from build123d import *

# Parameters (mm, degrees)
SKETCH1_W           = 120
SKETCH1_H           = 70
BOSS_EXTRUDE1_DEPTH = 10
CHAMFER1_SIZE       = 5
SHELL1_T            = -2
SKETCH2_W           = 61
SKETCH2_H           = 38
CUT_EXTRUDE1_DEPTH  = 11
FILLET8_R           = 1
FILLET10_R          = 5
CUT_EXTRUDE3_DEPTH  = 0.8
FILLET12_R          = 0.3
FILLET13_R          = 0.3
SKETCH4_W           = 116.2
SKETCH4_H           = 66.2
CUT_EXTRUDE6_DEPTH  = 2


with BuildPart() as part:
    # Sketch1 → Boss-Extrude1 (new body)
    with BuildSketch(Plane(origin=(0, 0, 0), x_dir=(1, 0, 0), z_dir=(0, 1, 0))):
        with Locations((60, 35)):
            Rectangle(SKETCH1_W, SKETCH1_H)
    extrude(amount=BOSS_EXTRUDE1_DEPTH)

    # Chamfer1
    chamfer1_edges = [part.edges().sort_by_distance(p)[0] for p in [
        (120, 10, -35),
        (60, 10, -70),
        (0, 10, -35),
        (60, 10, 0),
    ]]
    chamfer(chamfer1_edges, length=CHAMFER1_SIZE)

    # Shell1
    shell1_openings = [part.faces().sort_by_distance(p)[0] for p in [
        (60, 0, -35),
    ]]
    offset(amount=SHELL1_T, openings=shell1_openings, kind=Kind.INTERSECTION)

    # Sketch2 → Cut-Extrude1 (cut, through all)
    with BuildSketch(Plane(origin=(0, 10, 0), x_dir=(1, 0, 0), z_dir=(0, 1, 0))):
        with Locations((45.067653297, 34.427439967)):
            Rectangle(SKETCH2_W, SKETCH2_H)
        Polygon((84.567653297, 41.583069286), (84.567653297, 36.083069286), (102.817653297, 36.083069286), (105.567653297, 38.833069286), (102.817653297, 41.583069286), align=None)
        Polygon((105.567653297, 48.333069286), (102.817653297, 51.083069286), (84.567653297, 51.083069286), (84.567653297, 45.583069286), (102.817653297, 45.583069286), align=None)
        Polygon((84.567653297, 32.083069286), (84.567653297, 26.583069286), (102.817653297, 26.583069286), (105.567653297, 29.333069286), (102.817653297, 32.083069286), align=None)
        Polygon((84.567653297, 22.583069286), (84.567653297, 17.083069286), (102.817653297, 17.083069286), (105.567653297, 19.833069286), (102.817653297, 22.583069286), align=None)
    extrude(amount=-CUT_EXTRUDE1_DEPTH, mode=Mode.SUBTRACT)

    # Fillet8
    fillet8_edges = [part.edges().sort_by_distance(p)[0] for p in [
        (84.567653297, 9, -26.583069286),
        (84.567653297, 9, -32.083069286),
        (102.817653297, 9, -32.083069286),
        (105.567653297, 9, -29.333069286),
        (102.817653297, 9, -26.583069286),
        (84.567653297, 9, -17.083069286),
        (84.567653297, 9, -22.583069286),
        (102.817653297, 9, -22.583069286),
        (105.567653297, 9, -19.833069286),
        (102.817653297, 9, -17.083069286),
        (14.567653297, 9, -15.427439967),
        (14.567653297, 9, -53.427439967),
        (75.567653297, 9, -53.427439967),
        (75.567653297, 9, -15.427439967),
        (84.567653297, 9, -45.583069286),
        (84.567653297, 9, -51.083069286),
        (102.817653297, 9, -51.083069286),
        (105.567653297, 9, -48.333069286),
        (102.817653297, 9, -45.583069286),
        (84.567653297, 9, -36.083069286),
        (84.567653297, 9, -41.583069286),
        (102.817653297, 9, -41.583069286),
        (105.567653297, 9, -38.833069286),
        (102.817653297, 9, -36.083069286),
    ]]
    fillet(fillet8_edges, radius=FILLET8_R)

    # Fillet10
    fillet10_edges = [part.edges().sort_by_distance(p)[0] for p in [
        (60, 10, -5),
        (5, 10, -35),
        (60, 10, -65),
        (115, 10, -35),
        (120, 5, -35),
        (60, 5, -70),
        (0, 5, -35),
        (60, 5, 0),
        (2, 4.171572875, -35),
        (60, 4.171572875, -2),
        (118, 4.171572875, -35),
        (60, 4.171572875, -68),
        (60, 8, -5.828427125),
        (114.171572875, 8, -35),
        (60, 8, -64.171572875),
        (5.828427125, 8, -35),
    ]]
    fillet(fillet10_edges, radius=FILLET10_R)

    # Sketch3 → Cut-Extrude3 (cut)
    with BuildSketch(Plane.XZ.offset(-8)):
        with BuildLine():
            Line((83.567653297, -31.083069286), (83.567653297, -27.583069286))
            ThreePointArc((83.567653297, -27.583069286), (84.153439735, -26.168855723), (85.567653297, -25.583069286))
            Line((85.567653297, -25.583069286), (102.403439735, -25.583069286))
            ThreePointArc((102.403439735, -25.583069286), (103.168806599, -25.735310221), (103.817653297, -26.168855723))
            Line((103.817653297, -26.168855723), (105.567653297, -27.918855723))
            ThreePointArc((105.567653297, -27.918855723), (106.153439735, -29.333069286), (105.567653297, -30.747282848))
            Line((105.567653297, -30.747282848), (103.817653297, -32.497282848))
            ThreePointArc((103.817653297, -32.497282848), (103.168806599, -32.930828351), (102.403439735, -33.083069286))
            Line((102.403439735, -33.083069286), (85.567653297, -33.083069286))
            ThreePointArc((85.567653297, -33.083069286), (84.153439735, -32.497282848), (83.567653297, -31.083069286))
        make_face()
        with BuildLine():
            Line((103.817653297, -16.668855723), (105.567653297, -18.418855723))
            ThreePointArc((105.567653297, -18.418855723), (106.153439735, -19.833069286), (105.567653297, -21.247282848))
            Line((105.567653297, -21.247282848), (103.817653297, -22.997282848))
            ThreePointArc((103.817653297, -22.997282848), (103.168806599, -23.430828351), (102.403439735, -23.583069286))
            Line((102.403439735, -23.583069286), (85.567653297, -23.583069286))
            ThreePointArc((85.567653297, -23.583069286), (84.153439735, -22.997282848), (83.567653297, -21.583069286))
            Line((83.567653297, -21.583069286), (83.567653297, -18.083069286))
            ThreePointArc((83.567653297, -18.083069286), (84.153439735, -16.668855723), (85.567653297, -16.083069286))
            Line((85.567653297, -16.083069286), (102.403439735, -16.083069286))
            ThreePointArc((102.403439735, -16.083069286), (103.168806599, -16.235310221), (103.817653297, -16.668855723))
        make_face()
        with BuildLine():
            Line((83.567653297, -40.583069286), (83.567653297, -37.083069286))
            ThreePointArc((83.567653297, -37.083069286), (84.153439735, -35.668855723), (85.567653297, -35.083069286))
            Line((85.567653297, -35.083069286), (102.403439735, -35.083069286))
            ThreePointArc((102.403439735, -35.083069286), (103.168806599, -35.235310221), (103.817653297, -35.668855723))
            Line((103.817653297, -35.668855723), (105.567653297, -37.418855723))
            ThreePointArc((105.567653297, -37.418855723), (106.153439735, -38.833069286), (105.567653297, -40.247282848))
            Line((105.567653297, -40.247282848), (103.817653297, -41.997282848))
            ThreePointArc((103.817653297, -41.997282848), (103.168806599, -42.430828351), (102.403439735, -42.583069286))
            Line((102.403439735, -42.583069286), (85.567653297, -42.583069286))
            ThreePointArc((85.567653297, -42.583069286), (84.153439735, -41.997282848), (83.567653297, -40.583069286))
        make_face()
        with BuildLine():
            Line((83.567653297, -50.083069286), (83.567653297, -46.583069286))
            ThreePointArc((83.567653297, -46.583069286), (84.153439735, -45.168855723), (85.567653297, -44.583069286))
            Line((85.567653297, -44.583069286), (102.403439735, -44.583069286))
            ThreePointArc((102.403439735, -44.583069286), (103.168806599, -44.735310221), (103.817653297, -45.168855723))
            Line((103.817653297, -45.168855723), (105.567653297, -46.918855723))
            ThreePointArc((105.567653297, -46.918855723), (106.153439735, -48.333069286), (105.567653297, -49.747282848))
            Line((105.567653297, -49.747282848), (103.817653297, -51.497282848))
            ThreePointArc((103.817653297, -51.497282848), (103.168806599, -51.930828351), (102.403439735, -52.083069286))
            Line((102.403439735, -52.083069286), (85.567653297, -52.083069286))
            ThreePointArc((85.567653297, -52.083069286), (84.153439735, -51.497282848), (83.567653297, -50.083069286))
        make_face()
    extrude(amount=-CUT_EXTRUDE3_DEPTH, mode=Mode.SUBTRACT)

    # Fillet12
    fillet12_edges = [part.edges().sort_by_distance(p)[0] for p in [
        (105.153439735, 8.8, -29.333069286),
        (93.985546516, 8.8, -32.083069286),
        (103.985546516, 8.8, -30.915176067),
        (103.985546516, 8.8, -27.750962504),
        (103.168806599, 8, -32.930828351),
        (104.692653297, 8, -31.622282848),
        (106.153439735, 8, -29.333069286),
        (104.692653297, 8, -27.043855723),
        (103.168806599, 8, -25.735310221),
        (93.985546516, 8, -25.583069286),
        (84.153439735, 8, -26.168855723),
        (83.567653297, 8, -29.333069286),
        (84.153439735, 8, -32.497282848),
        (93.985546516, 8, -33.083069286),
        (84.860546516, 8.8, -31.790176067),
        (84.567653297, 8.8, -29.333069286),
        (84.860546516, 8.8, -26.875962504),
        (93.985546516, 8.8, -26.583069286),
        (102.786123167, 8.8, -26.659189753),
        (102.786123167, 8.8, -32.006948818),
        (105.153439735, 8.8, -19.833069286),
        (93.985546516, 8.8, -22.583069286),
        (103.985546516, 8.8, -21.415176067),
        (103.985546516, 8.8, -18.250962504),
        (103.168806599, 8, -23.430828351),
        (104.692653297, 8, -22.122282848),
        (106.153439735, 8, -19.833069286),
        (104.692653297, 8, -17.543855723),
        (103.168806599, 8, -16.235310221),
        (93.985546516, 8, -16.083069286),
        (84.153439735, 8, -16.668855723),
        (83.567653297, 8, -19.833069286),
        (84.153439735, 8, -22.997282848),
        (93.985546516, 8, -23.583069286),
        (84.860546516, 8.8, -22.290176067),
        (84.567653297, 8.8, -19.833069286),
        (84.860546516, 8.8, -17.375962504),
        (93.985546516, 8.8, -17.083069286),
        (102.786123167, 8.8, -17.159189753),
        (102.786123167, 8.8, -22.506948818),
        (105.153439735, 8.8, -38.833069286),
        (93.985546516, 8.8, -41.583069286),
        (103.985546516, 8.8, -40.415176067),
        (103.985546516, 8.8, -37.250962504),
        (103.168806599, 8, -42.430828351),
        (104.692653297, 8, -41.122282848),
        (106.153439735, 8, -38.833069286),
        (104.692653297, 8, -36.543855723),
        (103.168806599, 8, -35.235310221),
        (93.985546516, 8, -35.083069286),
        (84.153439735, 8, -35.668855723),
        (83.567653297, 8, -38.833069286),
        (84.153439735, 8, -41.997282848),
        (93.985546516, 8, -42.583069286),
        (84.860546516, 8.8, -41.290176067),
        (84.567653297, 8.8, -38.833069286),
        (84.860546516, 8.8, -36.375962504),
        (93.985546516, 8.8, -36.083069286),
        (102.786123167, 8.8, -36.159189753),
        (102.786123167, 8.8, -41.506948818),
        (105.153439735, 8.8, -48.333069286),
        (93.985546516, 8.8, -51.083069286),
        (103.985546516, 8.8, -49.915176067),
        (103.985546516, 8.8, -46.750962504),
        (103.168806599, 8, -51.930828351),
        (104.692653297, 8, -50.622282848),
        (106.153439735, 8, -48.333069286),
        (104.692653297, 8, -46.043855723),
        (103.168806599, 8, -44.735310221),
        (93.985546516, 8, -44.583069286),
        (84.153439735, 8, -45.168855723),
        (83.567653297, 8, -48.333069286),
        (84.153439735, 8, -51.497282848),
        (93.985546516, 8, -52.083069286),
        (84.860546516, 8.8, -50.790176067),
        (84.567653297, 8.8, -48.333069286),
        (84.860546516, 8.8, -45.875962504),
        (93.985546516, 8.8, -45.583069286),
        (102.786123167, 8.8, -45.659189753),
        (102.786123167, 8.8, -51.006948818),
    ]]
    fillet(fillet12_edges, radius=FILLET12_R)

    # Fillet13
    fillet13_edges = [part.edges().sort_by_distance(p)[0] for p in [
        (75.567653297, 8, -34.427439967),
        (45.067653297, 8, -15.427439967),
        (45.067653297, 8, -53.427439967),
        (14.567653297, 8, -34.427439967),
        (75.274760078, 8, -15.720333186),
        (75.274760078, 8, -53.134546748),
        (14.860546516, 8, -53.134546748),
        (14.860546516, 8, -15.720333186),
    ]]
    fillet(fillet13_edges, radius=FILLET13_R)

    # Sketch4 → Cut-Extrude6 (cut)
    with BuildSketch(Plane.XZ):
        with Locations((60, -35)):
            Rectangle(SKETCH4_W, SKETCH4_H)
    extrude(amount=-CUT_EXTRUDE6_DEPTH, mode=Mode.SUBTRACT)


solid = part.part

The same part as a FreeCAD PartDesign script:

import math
import FreeCAD as App
import Part
import Sketcher
from FreeCAD import Vector
Q = App.Units.Quantity


def edges_at(feature, points):
    """Names of the edges that pass closest to the given points."""
    edges = feature.Shape.Edges
    near = lambda p: min(range(len(edges)), key=lambda i: edges[i].distToShape(Part.Vertex(*p))[0])
    return sorted({f"Edge{near(p) + 1}" for p in points})


def faces_at(feature, points):
    """Names of the faces that lie closest to the given points."""
    faces = feature.Shape.Faces
    near = lambda p: min(range(len(faces)), key=lambda i: faces[i].distToShape(Part.Vertex(*p))[0])
    return sorted({f"Face{near(p) + 1}" for p in points})

doc = App.newDocument("Part")
body = doc.addObject("PartDesign::Body", "Body")

# Sketch on XZ plane
sketch1 = body.newObject("Sketcher::SketchObject", "Sketch")
sketch1.AttachmentSupport = (doc.getObject("XZ_Plane"), [""])
sketch1.MapMode = "FlatFace"
sketch1.addGeometry(Part.LineSegment(Vector(0, -70, 0), Vector(0, 0, 0)), False)
sketch1.addGeometry(Part.LineSegment(Vector(0, 0, 0), Vector(120, 0, 0)), False)
sketch1.addGeometry(Part.LineSegment(Vector(120, 0, 0), Vector(120, -70, 0)), False)
sketch1.addGeometry(Part.LineSegment(Vector(120, -70, 0), Vector(0, -70, 0)), False)
sketch1.addConstraint(Sketcher.Constraint("Coincident", 0, 2, 1, 1))
sketch1.addConstraint(Sketcher.Constraint("Coincident", 1, 2, 2, 1))
sketch1.addConstraint(Sketcher.Constraint("Coincident", 2, 2, 3, 1))
sketch1.addConstraint(Sketcher.Constraint("Coincident", 3, 2, 0, 1))
sketch1.addConstraint(Sketcher.Constraint("Vertical", 0))
sketch1.addConstraint(Sketcher.Constraint("Horizontal", 1))
sketch1.addConstraint(Sketcher.Constraint("Vertical", 2))
sketch1.addConstraint(Sketcher.Constraint("Horizontal", 3))
sketch1.addConstraint(Sketcher.Constraint("Coincident", 0, 2, -1, 1))
sketch1.addConstraint(Sketcher.Constraint("DistanceX", 1, 1, 1, 2, Q("120 mm")))
sketch1.addConstraint(Sketcher.Constraint("DistanceY", 0, 1, 0, 2, Q("70 mm")))
pad1 = body.newObject("PartDesign::Pad", "Pad")
pad1.Profile = sketch1
pad1.Length = 10
pad1.Reversed = True
doc.recompute()

chamfer = body.newObject("PartDesign::Chamfer", "Chamfer")
chamfer.Base = (pad1, edges_at(pad1, [
    (120, 10, -35),
    (60, 10, -70),
    (0, 10, -35),
    (60, 10, 0),
]))
chamfer.Size = 5
doc.recompute()

thickness = body.newObject("PartDesign::Thickness", "Thickness")
thickness.Base = (chamfer, faces_at(chamfer, [(60, 0, -35)]))
thickness.Value = 2
thickness.Reversed = True
thickness.Join = "Intersection"

# Sketch on XZ plane
sketch2 = body.newObject("Sketcher::SketchObject", "Sketch001")
sketch2.AttachmentSupport = (doc.getObject("XZ_Plane"), [""])
sketch2.MapMode = "FlatFace"
sketch2.AttachmentOffset = App.Placement(Vector(0, 0, -10), App.Rotation())
sketch2.addGeometry(Part.LineSegment(Vector(14.6, -53.4, 0), Vector(14.6, -15.4, 0)), False)
sketch2.addGeometry(Part.LineSegment(Vector(14.6, -15.4, 0), Vector(75.6, -15.4, 0)), False)
sketch2.addGeometry(Part.LineSegment(Vector(75.6, -15.4, 0), Vector(75.6, -53.4, 0)), False)
sketch2.addGeometry(Part.LineSegment(Vector(75.6, -53.4, 0), Vector(14.6, -53.4, 0)), False)
sketch2.addGeometry(Part.LineSegment(Vector(84.6, -41.6, 0), Vector(84.6, -36.1, 0)), False)
sketch2.addGeometry(Part.LineSegment(Vector(84.6, -36.1, 0), Vector(102.8, -36.1, 0)), False)
sketch2.addGeometry(Part.LineSegment(Vector(102.8, -36.1, 0), Vector(105.6, -38.8, 0)), False)
sketch2.addGeometry(Part.LineSegment(Vector(105.6, -38.8, 0), Vector(102.8, -41.6, 0)), False)
sketch2.addGeometry(Part.LineSegment(Vector(102.8, -41.6, 0), Vector(84.6, -41.6, 0)), False)
sketch2.addGeometry(Part.LineSegment(Vector(105.6, -48.3, 0), Vector(102.8, -51.1, 0)), False)
sketch2.addGeometry(Part.LineSegment(Vector(102.8, -51.1, 0), Vector(84.6, -51.1, 0)), False)
sketch2.addGeometry(Part.LineSegment(Vector(84.6, -51.1, 0), Vector(84.6, -45.6, 0)), False)
sketch2.addGeometry(Part.LineSegment(Vector(84.6, -45.6, 0), Vector(102.8, -45.6, 0)), False)
sketch2.addGeometry(Part.LineSegment(Vector(102.8, -45.6, 0), Vector(105.6, -48.3, 0)), False)
sketch2.addGeometry(Part.LineSegment(Vector(84.6, -32.1, 0), Vector(84.6, -26.6, 0)), False)
sketch2.addGeometry(Part.LineSegment(Vector(84.6, -26.6, 0), Vector(102.8, -26.6, 0)), False)
sketch2.addGeometry(Part.LineSegment(Vector(102.8, -26.6, 0), Vector(105.6, -29.3, 0)), False)
sketch2.addGeometry(Part.LineSegment(Vector(105.6, -29.3, 0), Vector(102.8, -32.1, 0)), False)
sketch2.addGeometry(Part.LineSegment(Vector(102.8, -32.1, 0), Vector(84.6, -32.1, 0)), False)
sketch2.addGeometry(Part.LineSegment(Vector(84.6, -22.6, 0), Vector(84.6, -17.1, 0)), False)
sketch2.addGeometry(Part.LineSegment(Vector(84.6, -17.1, 0), Vector(102.8, -17.1, 0)), False)
sketch2.addGeometry(Part.LineSegment(Vector(102.8, -17.1, 0), Vector(105.6, -19.8, 0)), False)
sketch2.addGeometry(Part.LineSegment(Vector(105.6, -19.8, 0), Vector(102.8, -22.6, 0)), False)
sketch2.addGeometry(Part.LineSegment(Vector(102.8, -22.6, 0), Vector(84.6, -22.6, 0)), False)
sketch2.addConstraint(Sketcher.Constraint("Coincident", 0, 2, 1, 1))
sketch2.addConstraint(Sketcher.Constraint("Coincident", 1, 2, 2, 1))
sketch2.addConstraint(Sketcher.Constraint("Coincident", 2, 2, 3, 1))
sketch2.addConstraint(Sketcher.Constraint("Coincident", 3, 2, 0, 1))
sketch2.addConstraint(Sketcher.Constraint("Coincident", 4, 2, 5, 1))
sketch2.addConstraint(Sketcher.Constraint("Coincident", 5, 2, 6, 1))
sketch2.addConstraint(Sketcher.Constraint("Coincident", 6, 2, 7, 1))
sketch2.addConstraint(Sketcher.Constraint("Coincident", 7, 2, 8, 1))
sketch2.addConstraint(Sketcher.Constraint("Coincident", 8, 2, 4, 1))
sketch2.addConstraint(Sketcher.Constraint("Coincident", 9, 2, 10, 1))
sketch2.addConstraint(Sketcher.Constraint("Coincident", 10, 2, 11, 1))
sketch2.addConstraint(Sketcher.Constraint("Coincident", 11, 2, 12, 1))
sketch2.addConstraint(Sketcher.Constraint("Coincident", 12, 2, 13, 1))
sketch2.addConstraint(Sketcher.Constraint("Coincident", 13, 2, 9, 1))
sketch2.addConstraint(Sketcher.Constraint("Coincident", 14, 2, 15, 1))
sketch2.addConstraint(Sketcher.Constraint("Coincident", 15, 2, 16, 1))
sketch2.addConstraint(Sketcher.Constraint("Coincident", 16, 2, 17, 1))
sketch2.addConstraint(Sketcher.Constraint("Coincident", 17, 2, 18, 1))
sketch2.addConstraint(Sketcher.Constraint("Coincident", 18, 2, 14, 1))
sketch2.addConstraint(Sketcher.Constraint("Coincident", 19, 2, 20, 1))
sketch2.addConstraint(Sketcher.Constraint("Coincident", 20, 2, 21, 1))
sketch2.addConstraint(Sketcher.Constraint("Coincident", 21, 2, 22, 1))
sketch2.addConstraint(Sketcher.Constraint("Coincident", 22, 2, 23, 1))
sketch2.addConstraint(Sketcher.Constraint("Coincident", 23, 2, 19, 1))
sketch2.addConstraint(Sketcher.Constraint("Vertical", 0))
sketch2.addConstraint(Sketcher.Constraint("Horizontal", 1))
sketch2.addConstraint(Sketcher.Constraint("Vertical", 2))
sketch2.addConstraint(Sketcher.Constraint("Horizontal", 3))
sketch2.addConstraint(Sketcher.Constraint("Vertical", 4))
sketch2.addConstraint(Sketcher.Constraint("Horizontal", 5))
sketch2.addConstraint(Sketcher.Constraint("Horizontal", 8))
sketch2.addConstraint(Sketcher.Constraint("Horizontal", 10))
sketch2.addConstraint(Sketcher.Constraint("Vertical", 11))
sketch2.addConstraint(Sketcher.Constraint("Horizontal", 12))
sketch2.addConstraint(Sketcher.Constraint("Vertical", 14))
sketch2.addConstraint(Sketcher.Constraint("Horizontal", 15))
sketch2.addConstraint(Sketcher.Constraint("Horizontal", 18))
sketch2.addConstraint(Sketcher.Constraint("Vertical", 19))
sketch2.addConstraint(Sketcher.Constraint("Horizontal", 20))
sketch2.addConstraint(Sketcher.Constraint("Horizontal", 23))
sketch2.addConstraint(Sketcher.Constraint("Perpendicular", 6, 7))
sketch2.addConstraint(Sketcher.Constraint("Parallel", 7, 9))
sketch2.addConstraint(Sketcher.Constraint("Perpendicular", 9, 13))
sketch2.addConstraint(Sketcher.Constraint("Parallel", 13, 16))
sketch2.addConstraint(Sketcher.Constraint("Perpendicular", 16, 17))
sketch2.addConstraint(Sketcher.Constraint("Perpendicular", 17, 21))
sketch2.addConstraint(Sketcher.Constraint("Perpendicular", 21, 22))
sketch2.addConstraint(Sketcher.Constraint("Vertical", 5, 2, 7, 2))
sketch2.addConstraint(Sketcher.Constraint("Vertical", 7, 2, 9, 2))
sketch2.addConstraint(Sketcher.Constraint("Vertical", 8, 2, 10, 2))
sketch2.addConstraint(Sketcher.Constraint("Vertical", 9, 2, 12, 2))
sketch2.addConstraint(Sketcher.Constraint("Vertical", 6, 2, 13, 2))
sketch2.addConstraint(Sketcher.Constraint("Vertical", 11, 2, 14, 2))
sketch2.addConstraint(Sketcher.Constraint("Vertical", 12, 2, 15, 2))
sketch2.addConstraint(Sketcher.Constraint("Vertical", 13, 2, 16, 2))
sketch2.addConstraint(Sketcher.Constraint("Vertical", 15, 2, 17, 2))
sketch2.addConstraint(Sketcher.Constraint("Vertical", 18, 2, 19, 2))
sketch2.addConstraint(Sketcher.Constraint("Vertical", 17, 2, 20, 2))
sketch2.addConstraint(Sketcher.Constraint("Vertical", 16, 2, 21, 2))
sketch2.addConstraint(Sketcher.Constraint("Vertical", 20, 2, 22, 2))
sketch2.addConstraint(Sketcher.Constraint("Equal", 6, 7))
sketch2.addConstraint(Sketcher.Constraint("DistanceX", 1, 1, 1, 2, Q("61 mm")))
sketch2.addConstraint(Sketcher.Constraint("DistanceY", 0, 1, 0, 2, Q("38 mm")))
sketch2.addConstraint(Sketcher.Constraint("DistanceY", 4, 1, 4, 2, Q("5.5 mm")))
sketch2.addConstraint(Sketcher.Constraint("DistanceX", 2, 2, 4, 2, Q("9 mm")))
sketch2.addConstraint(Sketcher.Constraint("DistanceX", 4, 2, 6, 2, Q("21 mm")))
sketch2.addConstraint(Sketcher.Constraint("DistanceY", 9, 2, 5, 2, Q("15 mm")))
sketch2.addConstraint(Sketcher.Constraint("DistanceY", 8, 2, 14, 2, Q("15 mm")))
sketch2.addConstraint(Sketcher.Constraint("DistanceY", 18, 2, 19, 2, Q("15 mm")))
sketch2.addConstraint(Sketcher.Constraint("DistanceY", 0, 2, -1, 1, Q("15.42744 mm")))
sketch2.addConstraint(Sketcher.Constraint("DistanceY", 4, 2, -1, 1, Q("36.083069 mm")))
sketch2.addConstraint(Sketcher.Constraint("DistanceX", -1, 1, 0, 2, Q("14.567653 mm")))
pocket1 = body.newObject("PartDesign::Pocket", "Pocket")
pocket1.Profile = sketch2
pocket1.Type = "ThroughAll"
pocket1.Reversed = True
doc.recompute()

fillet = body.newObject("PartDesign::Fillet", "Fillet")
fillet.Base = (pocket1, edges_at(pocket1, [
    (84.568, 9, -26.583),
    (84.568, 9, -32.083),
    (102.818, 9, -32.083),
    (105.568, 9, -29.333),
    (102.818, 9, -26.583),
    (84.568, 9, -17.083),
    (84.568, 9, -22.583),
    (102.818, 9, -22.583),
    (105.568, 9, -19.833),
    (102.818, 9, -17.083),
    (14.568, 9, -15.427),
    (14.568, 9, -53.427),
    (75.568, 9, -53.427),
    (75.568, 9, -15.427),
    (84.568, 9, -45.583),
    (84.568, 9, -51.083),
    (102.818, 9, -51.083),
    (105.568, 9, -48.333),
    (102.818, 9, -45.583),
    (84.568, 9, -36.083),
    (84.568, 9, -41.583),
    (102.818, 9, -41.583),
    (105.568, 9, -38.833),
    (102.818, 9, -36.083),
]))
fillet.Radius = 1
doc.recompute()

fillet2 = body.newObject("PartDesign::Fillet", "Fillet001")
fillet2.Base = (fillet, edges_at(fillet, [
    (60, 10, -5),
    (5, 10, -35),
    (60, 10, -65),
    (115, 10, -35),
    (120, 5, -35),
    (60, 5, -70),
    (0, 5, -35),
    (60, 5, 0),
    (2, 4.172, -35),
    (60, 4.172, -2),
    (118, 4.172, -35),
    (60, 4.172, -68),
    (60, 8, -5.828),
    (114.172, 8, -35),
    (60, 8, -64.172),
    (5.828, 8, -35),
]))
fillet2.Radius = 5

# Sketch on XZ plane
sketch3 = body.newObject("Sketcher::SketchObject", "Sketch002")
sketch3.AttachmentSupport = (doc.getObject("XZ_Plane"), [""])
sketch3.MapMode = "FlatFace"
sketch3.AttachmentOffset = App.Placement(Vector(0, 0, -8), App.Rotation())
sketch3.addGeometry(Part.LineSegment(Vector(83.6, -27.6, 0), Vector(83.6, -31.1, 0)), False)
sketch3.addGeometry(Part.ArcOfCircle(Part.Circle(Vector(85.6, -31.1, 0), Vector(0, 0, 1), 2), math.radians(-180), math.radians(-90)), False)
sketch3.addGeometry(Part.LineSegment(Vector(85.6, -33.1, 0), Vector(102.4, -33.1, 0)), False)
sketch3.addGeometry(Part.ArcOfCircle(Part.Circle(Vector(102.4, -31.1, 0), Vector(0, 0, 1), 2), math.radians(-90), math.radians(-45)), False)
sketch3.addGeometry(Part.LineSegment(Vector(103.8, -32.5, 0), Vector(105.6, -30.7, 0)), False)
sketch3.addGeometry(Part.ArcOfCircle(Part.Circle(Vector(104.2, -29.3, 0), Vector(0, 0, 1), 2), math.radians(-45), math.radians(45)), False)
sketch3.addGeometry(Part.LineSegment(Vector(105.6, -27.9, 0), Vector(103.8, -26.2, 0)), False)
sketch3.addGeometry(Part.ArcOfCircle(Part.Circle(Vector(102.4, -27.6, 0), Vector(0, 0, 1), 2), math.radians(45), math.radians(90)), False)
sketch3.addGeometry(Part.LineSegment(Vector(102.4, -25.6, 0), Vector(85.6, -25.6, 0)), False)
sketch3.addGeometry(Part.ArcOfCircle(Part.Circle(Vector(85.6, -27.6, 0), Vector(0, 0, 1), 2), math.radians(90), math.radians(180)), False)
sketch3.addGeometry(Part.LineSegment(Vector(105.6, -18.4, 0), Vector(103.8, -16.7, 0)), False)
sketch3.addGeometry(Part.ArcOfCircle(Part.Circle(Vector(102.4, -18.1, 0), Vector(0, 0, 1), 2), math.radians(45), math.radians(90)), False)
sketch3.addGeometry(Part.LineSegment(Vector(102.4, -16.1, 0), Vector(85.6, -16.1, 0)), False)
sketch3.addGeometry(Part.ArcOfCircle(Part.Circle(Vector(85.6, -18.1, 0), Vector(0, 0, 1), 2), math.radians(90), math.radians(180)), False)
sketch3.addGeometry(Part.LineSegment(Vector(83.6, -18.1, 0), Vector(83.6, -21.6, 0)), False)
sketch3.addGeometry(Part.ArcOfCircle(Part.Circle(Vector(85.6, -21.6, 0), Vector(0, 0, 1), 2), math.radians(-180), math.radians(-90)), False)
sketch3.addGeometry(Part.LineSegment(Vector(85.6, -23.6, 0), Vector(102.4, -23.6, 0)), False)
sketch3.addGeometry(Part.ArcOfCircle(Part.Circle(Vector(102.4, -21.6, 0), Vector(0, 0, 1), 2), math.radians(-90), math.radians(-45)), False)
sketch3.addGeometry(Part.LineSegment(Vector(103.8, -23, 0), Vector(105.6, -21.2, 0)), False)
sketch3.addGeometry(Part.ArcOfCircle(Part.Circle(Vector(104.2, -19.8, 0), Vector(0, 0, 1), 2), math.radians(-45), math.radians(45)), False)
sketch3.addGeometry(Part.LineSegment(Vector(83.6, -37.1, 0), Vector(83.6, -40.6, 0)), False)
sketch3.addGeometry(Part.ArcOfCircle(Part.Circle(Vector(85.6, -40.6, 0), Vector(0, 0, 1), 2), math.radians(-180), math.radians(-90)), False)
sketch3.addGeometry(Part.LineSegment(Vector(85.6, -42.6, 0), Vector(102.4, -42.6, 0)), False)
sketch3.addGeometry(Part.ArcOfCircle(Part.Circle(Vector(102.4, -40.6, 0), Vector(0, 0, 1), 2), math.radians(-90), math.radians(-45)), False)
sketch3.addGeometry(Part.LineSegment(Vector(103.8, -42, 0), Vector(105.6, -40.2, 0)), False)
sketch3.addGeometry(Part.ArcOfCircle(Part.Circle(Vector(104.2, -38.8, 0), Vector(0, 0, 1), 2), math.radians(-45), math.radians(45)), False)
sketch3.addGeometry(Part.LineSegment(Vector(105.6, -37.4, 0), Vector(103.8, -35.7, 0)), False)
sketch3.addGeometry(Part.ArcOfCircle(Part.Circle(Vector(102.4, -37.1, 0), Vector(0, 0, 1), 2), math.radians(45), math.radians(90)), False)
sketch3.addGeometry(Part.LineSegment(Vector(102.4, -35.1, 0), Vector(85.6, -35.1, 0)), False)
sketch3.addGeometry(Part.ArcOfCircle(Part.Circle(Vector(85.6, -37.1, 0), Vector(0, 0, 1), 2), math.radians(90), math.radians(180)), False)
sketch3.addGeometry(Part.LineSegment(Vector(83.6, -46.6, 0), Vector(83.6, -50.1, 0)), False)
sketch3.addGeometry(Part.ArcOfCircle(Part.Circle(Vector(85.6, -50.1, 0), Vector(0, 0, 1), 2), math.radians(-180), math.radians(-90)), False)
sketch3.addGeometry(Part.LineSegment(Vector(85.6, -52.1, 0), Vector(102.4, -52.1, 0)), False)
sketch3.addGeometry(Part.ArcOfCircle(Part.Circle(Vector(102.4, -50.1, 0), Vector(0, 0, 1), 2), math.radians(-90), math.radians(-45)), False)
sketch3.addGeometry(Part.LineSegment(Vector(103.8, -51.5, 0), Vector(105.6, -49.7, 0)), False)
sketch3.addGeometry(Part.ArcOfCircle(Part.Circle(Vector(104.2, -48.3, 0), Vector(0, 0, 1), 2), math.radians(-45), math.radians(45)), False)
sketch3.addGeometry(Part.LineSegment(Vector(105.6, -46.9, 0), Vector(103.8, -45.2, 0)), False)
sketch3.addGeometry(Part.ArcOfCircle(Part.Circle(Vector(102.4, -46.6, 0), Vector(0, 0, 1), 2), math.radians(45), math.radians(90)), False)
sketch3.addGeometry(Part.LineSegment(Vector(102.4, -44.6, 0), Vector(85.6, -44.6, 0)), False)
sketch3.addGeometry(Part.ArcOfCircle(Part.Circle(Vector(85.6, -46.6, 0), Vector(0, 0, 1), 2), math.radians(90), math.radians(180)), False)
sketch3.addConstraint(Sketcher.Constraint("Tangent", 0, 2, 1, 1))
sketch3.addConstraint(Sketcher.Constraint("Tangent", 1, 2, 2, 1))
sketch3.addConstraint(Sketcher.Constraint("Tangent", 2, 2, 3, 1))
sketch3.addConstraint(Sketcher.Constraint("Tangent", 3, 2, 4, 1))
sketch3.addConstraint(Sketcher.Constraint("Tangent", 4, 2, 5, 1))
sketch3.addConstraint(Sketcher.Constraint("Tangent", 5, 2, 6, 1))
sketch3.addConstraint(Sketcher.Constraint("Tangent", 6, 2, 7, 1))
sketch3.addConstraint(Sketcher.Constraint("Tangent", 7, 2, 8, 1))
sketch3.addConstraint(Sketcher.Constraint("Tangent", 8, 2, 9, 1))
sketch3.addConstraint(Sketcher.Constraint("Tangent", 9, 2, 0, 1))
sketch3.addConstraint(Sketcher.Constraint("Tangent", 10, 2, 11, 1))
sketch3.addConstraint(Sketcher.Constraint("Tangent", 11, 2, 12, 1))
sketch3.addConstraint(Sketcher.Constraint("Tangent", 12, 2, 13, 1))
sketch3.addConstraint(Sketcher.Constraint("Tangent", 13, 2, 14, 1))
sketch3.addConstraint(Sketcher.Constraint("Tangent", 14, 2, 15, 1))
sketch3.addConstraint(Sketcher.Constraint("Tangent", 15, 2, 16, 1))
sketch3.addConstraint(Sketcher.Constraint("Tangent", 16, 2, 17, 1))
sketch3.addConstraint(Sketcher.Constraint("Tangent", 17, 2, 18, 1))
sketch3.addConstraint(Sketcher.Constraint("Tangent", 18, 2, 19, 1))
sketch3.addConstraint(Sketcher.Constraint("Tangent", 19, 2, 10, 1))
sketch3.addConstraint(Sketcher.Constraint("Tangent", 20, 2, 21, 1))
sketch3.addConstraint(Sketcher.Constraint("Tangent", 21, 2, 22, 1))
sketch3.addConstraint(Sketcher.Constraint("Tangent", 22, 2, 23, 1))
sketch3.addConstraint(Sketcher.Constraint("Tangent", 23, 2, 24, 1))
sketch3.addConstraint(Sketcher.Constraint("Tangent", 24, 2, 25, 1))
sketch3.addConstraint(Sketcher.Constraint("Tangent", 25, 2, 26, 1))
sketch3.addConstraint(Sketcher.Constraint("Tangent", 26, 2, 27, 1))
sketch3.addConstraint(Sketcher.Constraint("Tangent", 27, 2, 28, 1))
sketch3.addConstraint(Sketcher.Constraint("Tangent", 28, 2, 29, 1))
sketch3.addConstraint(Sketcher.Constraint("Tangent", 29, 2, 20, 1))
sketch3.addConstraint(Sketcher.Constraint("Tangent", 30, 2, 31, 1))
sketch3.addConstraint(Sketcher.Constraint("Tangent", 31, 2, 32, 1))
sketch3.addConstraint(Sketcher.Constraint("Tangent", 32, 2, 33, 1))
sketch3.addConstraint(Sketcher.Constraint("Tangent", 33, 2, 34, 1))
sketch3.addConstraint(Sketcher.Constraint("Tangent", 34, 2, 35, 1))
sketch3.addConstraint(Sketcher.Constraint("Tangent", 35, 2, 36, 1))
sketch3.addConstraint(Sketcher.Constraint("Tangent", 36, 2, 37, 1))
sketch3.addConstraint(Sketcher.Constraint("Tangent", 37, 2, 38, 1))
sketch3.addConstraint(Sketcher.Constraint("Tangent", 38, 2, 39, 1))
sketch3.addConstraint(Sketcher.Constraint("Tangent", 39, 2, 30, 1))
sketch3.addConstraint(Sketcher.Constraint("Vertical", 0))
sketch3.addConstraint(Sketcher.Constraint("Horizontal", 2))
sketch3.addConstraint(Sketcher.Constraint("Horizontal", 8))
sketch3.addConstraint(Sketcher.Constraint("Horizontal", 12))
sketch3.addConstraint(Sketcher.Constraint("Vertical", 14))
sketch3.addConstraint(Sketcher.Constraint("Horizontal", 16))
sketch3.addConstraint(Sketcher.Constraint("Vertical", 20))
sketch3.addConstraint(Sketcher.Constraint("Horizontal", 22))
sketch3.addConstraint(Sketcher.Constraint("Horizontal", 28))
sketch3.addConstraint(Sketcher.Constraint("Vertical", 30))
sketch3.addConstraint(Sketcher.Constraint("Horizontal", 32))
sketch3.addConstraint(Sketcher.Constraint("Horizontal", 38))
sketch3.addConstraint(Sketcher.Constraint("Equal", 1, 3))
sketch3.addConstraint(Sketcher.Constraint("Equal", 3, 5))
sketch3.addConstraint(Sketcher.Constraint("Equal", 5, 7))
sketch3.addConstraint(Sketcher.Constraint("Equal", 7, 9))
sketch3.addConstraint(Sketcher.Constraint("Equal", 9, 11))
sketch3.addConstraint(Sketcher.Constraint("Equal", 11, 13))
sketch3.addConstraint(Sketcher.Constraint("Equal", 13, 15))
sketch3.addConstraint(Sketcher.Constraint("Equal", 15, 17))
sketch3.addConstraint(Sketcher.Constraint("Equal", 17, 19))
sketch3.addConstraint(Sketcher.Constraint("Equal", 19, 21))
sketch3.addConstraint(Sketcher.Constraint("Equal", 21, 23))
sketch3.addConstraint(Sketcher.Constraint("Equal", 23, 25))
sketch3.addConstraint(Sketcher.Constraint("Equal", 25, 27))
sketch3.addConstraint(Sketcher.Constraint("Equal", 27, 29))
sketch3.addConstraint(Sketcher.Constraint("Equal", 29, 31))
sketch3.addConstraint(Sketcher.Constraint("Equal", 31, 33))
sketch3.addConstraint(Sketcher.Constraint("Equal", 33, 35))
sketch3.addConstraint(Sketcher.Constraint("Equal", 35, 37))
sketch3.addConstraint(Sketcher.Constraint("Equal", 37, 39))
sketch3.addConstraint(Sketcher.Constraint("Perpendicular", 4, 6))
sketch3.addConstraint(Sketcher.Constraint("Parallel", 6, 10))
sketch3.addConstraint(Sketcher.Constraint("Perpendicular", 10, 18))
sketch3.addConstraint(Sketcher.Constraint("Parallel", 18, 24))
sketch3.addConstraint(Sketcher.Constraint("Perpendicular", 24, 26))
sketch3.addConstraint(Sketcher.Constraint("Perpendicular", 26, 34))
sketch3.addConstraint(Sketcher.Constraint("Perpendicular", 34, 36))
sketch3.addConstraint(Sketcher.Constraint("Vertical", 3, 3, 7, 3))
sketch3.addConstraint(Sketcher.Constraint("Vertical", 7, 3, 11, 3))
sketch3.addConstraint(Sketcher.Constraint("Vertical", 9, 3, 13, 3))
sketch3.addConstraint(Sketcher.Constraint("Vertical", 11, 3, 17, 3))
sketch3.addConstraint(Sketcher.Constraint("Vertical", 5, 3, 19, 3))
sketch3.addConstraint(Sketcher.Constraint("Vertical", 15, 3, 21, 3))
sketch3.addConstraint(Sketcher.Constraint("Vertical", 17, 3, 23, 3))
sketch3.addConstraint(Sketcher.Constraint("Vertical", 19, 3, 25, 3))
sketch3.addConstraint(Sketcher.Constraint("Vertical", 23, 3, 27, 3))
sketch3.addConstraint(Sketcher.Constraint("Vertical", 29, 3, 31, 3))
sketch3.addConstraint(Sketcher.Constraint("Vertical", 27, 3, 33, 3))
sketch3.addConstraint(Sketcher.Constraint("Vertical", 25, 3, 35, 3))
sketch3.addConstraint(Sketcher.Constraint("Vertical", 33, 3, 37, 3))
sketch3.addConstraint(Sketcher.Constraint("Vertical", 4, 2, 5, 2))
sketch3.addConstraint(Sketcher.Constraint("Radius", 1, Q("2 mm")))
sketch3.addConstraint(Sketcher.Constraint("DistanceY", 0, 2, 0, 1, Q("3.5 mm")))
sketch3.addConstraint(Sketcher.Constraint("DistanceY", 3, 3, 11, 3, Q("13 mm")))
sketch3.addConstraint(Sketcher.Constraint("DistanceY", 21, 3, 9, 3, Q("13 mm")))
sketch3.addConstraint(Sketcher.Constraint("DistanceY", 31, 3, 29, 3, Q("13 mm")))
sketch3.addConstraint(Sketcher.Constraint("DistanceX", 2, 1, 2, 2, Q("16.835786 mm")))
sketch3.addConstraint(Sketcher.Constraint("DistanceY", 1, 3, -1, 1, Q("31.083069 mm")))
sketch3.addConstraint(Sketcher.Constraint("DistanceX", -1, 1, 3, 3, Q("102.40344 mm")))
pocket2 = body.newObject("PartDesign::Pocket", "Pocket001")
pocket2.Profile = sketch3
pocket2.Length = 0.8
doc.recompute()

fillet3 = body.newObject("PartDesign::Fillet", "Fillet002")
fillet3.Base = (pocket2, edges_at(pocket2, [
    (105.153, 8.8, -29.333),
    (93.986, 8.8, -32.083),
    (103.986, 8.8, -30.915),
    (103.986, 8.8, -27.751),
    (103.169, 8, -32.931),
    (104.693, 8, -31.622),
    (106.153, 8, -29.333),
    (104.693, 8, -27.044),
    (103.169, 8, -25.735),
    (93.986, 8, -25.583),
    (84.153, 8, -26.169),
    (83.568, 8, -29.333),
    (84.153, 8, -32.497),
    (93.986, 8, -33.083),
    (84.861, 8.8, -31.79),
    (84.568, 8.8, -29.333),
    (84.861, 8.8, -26.876),
    (93.986, 8.8, -26.583),
    (102.786, 8.8, -26.659),
    (102.786, 8.8, -32.007),
    (105.153, 8.8, -19.833),
    (93.986, 8.8, -22.583),
    (103.986, 8.8, -21.415),
    (103.986, 8.8, -18.251),
    (103.169, 8, -23.431),
    (104.693, 8, -22.122),
    (106.153, 8, -19.833),
    (104.693, 8, -17.544),
    (103.169, 8, -16.235),
    (93.986, 8, -16.083),
    (84.153, 8, -16.669),
    (83.568, 8, -19.833),
    (84.153, 8, -22.997),
    (93.986, 8, -23.583),
    (84.861, 8.8, -22.29),
    (84.568, 8.8, -19.833),
    (84.861, 8.8, -17.376),
    (93.986, 8.8, -17.083),
    (102.786, 8.8, -17.159),
    (102.786, 8.8, -22.507),
    (105.153, 8.8, -38.833),
    (93.986, 8.8, -41.583),
    (103.986, 8.8, -40.415),
    (103.986, 8.8, -37.251),
    (103.169, 8, -42.431),
    (104.693, 8, -41.122),
    (106.153, 8, -38.833),
    (104.693, 8, -36.544),
    (103.169, 8, -35.235),
    (93.986, 8, -35.083),
    (84.153, 8, -35.669),
    (83.568, 8, -38.833),
    (84.153, 8, -41.997),
    (93.986, 8, -42.583),
    (84.861, 8.8, -41.29),
    (84.568, 8.8, -38.833),
    (84.861, 8.8, -36.376),
    (93.986, 8.8, -36.083),
    (102.786, 8.8, -36.159),
    (102.786, 8.8, -41.507),
    (105.153, 8.8, -48.333),
    (93.986, 8.8, -51.083),
    (103.986, 8.8, -49.915),
    (103.986, 8.8, -46.751),
    (103.169, 8, -51.931),
    (104.693, 8, -50.622),
    (106.153, 8, -48.333),
    (104.693, 8, -46.044),
    (103.169, 8, -44.735),
    (93.986, 8, -44.583),
    (84.153, 8, -45.169),
    (83.568, 8, -48.333),
    (84.153, 8, -51.497),
    (93.986, 8, -52.083),
    (84.861, 8.8, -50.79),
    (84.568, 8.8, -48.333),
    (84.861, 8.8, -45.876),
    (93.986, 8.8, -45.583),
    (102.786, 8.8, -45.659),
    (102.786, 8.8, -51.007),
]))
fillet3.Radius = 0.3
doc.recompute()

fillet4 = body.newObject("PartDesign::Fillet", "Fillet003")
fillet4.Base = (fillet3, edges_at(fillet3, [
    (75.568, 8, -34.427),
    (45.068, 8, -15.427),
    (45.068, 8, -53.427),
    (14.568, 8, -34.427),
    (75.275, 8, -15.72),
    (75.275, 8, -53.135),
    (14.861, 8, -53.135),
    (14.861, 8, -15.72),
]))
fillet4.Radius = 0.3

# Sketch on XZ plane
sketch4 = body.newObject("Sketcher::SketchObject", "Sketch003")
sketch4.AttachmentSupport = (doc.getObject("XZ_Plane"), [""])
sketch4.MapMode = "FlatFace"
sketch4.addGeometry(Part.LineSegment(Vector(2, -2, 0), Vector(2, -68, 0)), False)
sketch4.addGeometry(Part.LineSegment(Vector(2, -68, 0), Vector(118, -68, 0)), False)
sketch4.addGeometry(Part.LineSegment(Vector(118, -68, 0), Vector(118, -2, 0)), False)
sketch4.addGeometry(Part.LineSegment(Vector(118, -2, 0), Vector(2, -2, 0)), False)
sketch4.addConstraint(Sketcher.Constraint("Coincident", 0, 2, 1, 1))
sketch4.addConstraint(Sketcher.Constraint("Coincident", 1, 2, 2, 1))
sketch4.addConstraint(Sketcher.Constraint("Coincident", 2, 2, 3, 1))
sketch4.addConstraint(Sketcher.Constraint("Coincident", 3, 2, 0, 1))
sketch4.addConstraint(Sketcher.Constraint("Vertical", 0))
sketch4.addConstraint(Sketcher.Constraint("Horizontal", 1))
sketch4.addConstraint(Sketcher.Constraint("Vertical", 2))
sketch4.addConstraint(Sketcher.Constraint("Horizontal", 3))
sketch4.addConstraint(Sketcher.Constraint("DistanceX", 1, 1, 1, 2, Q("116.2 mm")))
sketch4.addConstraint(Sketcher.Constraint("DistanceY", 0, 2, 0, 1, Q("66.2 mm")))
sketch4.addConstraint(Sketcher.Constraint("DistanceX", -1, 1, 0, 2, Q("1.9 mm")))
sketch4.addConstraint(Sketcher.Constraint("DistanceY", 0, 2, -1, 1, Q("68.1 mm")))
pocket3 = body.newObject("PartDesign::Pocket", "Pocket002")
pocket3.Profile = sketch4
pocket3.Length = 2

doc.recompute()
